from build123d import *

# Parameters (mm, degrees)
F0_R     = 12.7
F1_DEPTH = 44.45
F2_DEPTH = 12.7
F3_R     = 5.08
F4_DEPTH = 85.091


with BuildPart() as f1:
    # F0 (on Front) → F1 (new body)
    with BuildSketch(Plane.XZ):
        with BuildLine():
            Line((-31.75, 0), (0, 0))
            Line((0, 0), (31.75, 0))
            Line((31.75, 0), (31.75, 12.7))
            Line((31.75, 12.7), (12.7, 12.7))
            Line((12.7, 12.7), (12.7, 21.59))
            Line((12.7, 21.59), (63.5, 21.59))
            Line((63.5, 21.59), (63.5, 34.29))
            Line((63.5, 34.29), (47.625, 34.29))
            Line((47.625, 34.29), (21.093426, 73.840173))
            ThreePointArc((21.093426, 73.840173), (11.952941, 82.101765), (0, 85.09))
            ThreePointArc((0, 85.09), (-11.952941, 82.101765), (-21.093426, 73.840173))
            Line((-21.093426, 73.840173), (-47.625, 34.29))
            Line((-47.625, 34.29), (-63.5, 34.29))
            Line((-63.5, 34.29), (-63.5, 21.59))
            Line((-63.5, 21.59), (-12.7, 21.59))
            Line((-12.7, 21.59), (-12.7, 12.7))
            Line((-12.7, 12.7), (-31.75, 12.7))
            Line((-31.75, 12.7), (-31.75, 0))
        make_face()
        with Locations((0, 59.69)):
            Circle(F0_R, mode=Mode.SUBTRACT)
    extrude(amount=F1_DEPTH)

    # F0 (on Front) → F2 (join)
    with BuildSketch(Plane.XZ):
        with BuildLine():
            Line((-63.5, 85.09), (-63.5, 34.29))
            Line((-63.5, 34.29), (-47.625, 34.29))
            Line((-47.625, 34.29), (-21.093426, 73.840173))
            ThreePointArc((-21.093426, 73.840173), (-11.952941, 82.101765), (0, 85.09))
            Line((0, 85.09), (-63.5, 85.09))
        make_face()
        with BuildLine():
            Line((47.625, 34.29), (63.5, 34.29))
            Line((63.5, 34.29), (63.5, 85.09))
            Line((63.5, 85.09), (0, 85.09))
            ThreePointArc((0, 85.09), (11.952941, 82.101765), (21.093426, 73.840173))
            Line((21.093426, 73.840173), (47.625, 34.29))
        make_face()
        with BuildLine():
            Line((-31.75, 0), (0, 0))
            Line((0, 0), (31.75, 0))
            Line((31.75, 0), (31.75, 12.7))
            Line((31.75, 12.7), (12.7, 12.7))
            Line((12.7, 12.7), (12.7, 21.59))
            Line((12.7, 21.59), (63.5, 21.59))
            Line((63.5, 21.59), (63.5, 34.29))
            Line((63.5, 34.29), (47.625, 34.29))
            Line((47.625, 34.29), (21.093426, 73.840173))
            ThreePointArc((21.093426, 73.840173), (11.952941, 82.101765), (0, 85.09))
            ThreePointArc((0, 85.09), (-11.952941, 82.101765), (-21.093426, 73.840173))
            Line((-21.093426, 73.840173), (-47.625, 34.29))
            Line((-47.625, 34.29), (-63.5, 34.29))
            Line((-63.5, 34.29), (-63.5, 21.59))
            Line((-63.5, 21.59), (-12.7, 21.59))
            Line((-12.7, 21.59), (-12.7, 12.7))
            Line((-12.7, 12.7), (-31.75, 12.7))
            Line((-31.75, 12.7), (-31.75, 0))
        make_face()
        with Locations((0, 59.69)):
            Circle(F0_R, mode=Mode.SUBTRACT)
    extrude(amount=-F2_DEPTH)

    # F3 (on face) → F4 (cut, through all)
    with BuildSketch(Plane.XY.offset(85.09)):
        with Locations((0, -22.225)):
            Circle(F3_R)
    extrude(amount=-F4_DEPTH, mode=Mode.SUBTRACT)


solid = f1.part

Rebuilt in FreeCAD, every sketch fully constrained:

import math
import FreeCAD as App
import Part
import Sketcher
from FreeCAD import Vector
Q = App.Units.Quantity

doc = App.newDocument("Part")
body = doc.addObject("PartDesign::Body", "Body")

# Sketch on XZ plane
sketch1 = body.newObject("Sketcher::SketchObject", "Sketch")
sketch1.AttachmentSupport = (doc.getObject("XZ_Plane"), [""])
sketch1.MapMode = "FlatFace"
sketch1.addGeometry(Part.LineSegment(Vector(-31.75, 0, 0), Vector(31.75, 0, 0)), False)
sketch1.addGeometry(Part.LineSegment(Vector(31.75, 0, 0), Vector(31.75, 12.7, 0)), False)
sketch1.addGeometry(Part.LineSegment(Vector(31.75, 12.7, 0), Vector(12.7, 12.7, 0)), False)
sketch1.addGeometry(Part.LineSegment(Vector(12.7, 12.7, 0), Vector(12.7, 21.59, 0)), False)
sketch1.addGeometry(Part.LineSegment(Vector(12.7, 21.59, 0), Vector(63.5, 21.59, 0)), False)
sketch1.addGeometry(Part.LineSegment(Vector(63.5, 21.59, 0), Vector(63.5, 34.29, 0)), False)
sketch1.addGeometry(Part.LineSegment(Vector(63.5, 34.29, 0), Vector(47.625, 34.29, 0)), False)
sketch1.addGeometry(Part.LineSegment(Vector(47.625, 34.29, 0), Vector(21.093426, 73.840173, 0)), False)
sketch1.addGeometry(Part.ArcOfCircle(Part.Circle(Vector(0, 59.69, 0), Vector(0, 0, 1), 25.4), math.radians(33.855026), math.radians(90.000001)), False)
sketch1.addGeometry(Part.ArcOfCircle(Part.Circle(Vector(0, 59.69, 0), Vector(0, 0, 1), 25.4), math.radians(89.999999), math.radians(146.144974)), False)
sketch1.addGeometry(Part.LineSegment(Vector(-21.093426, 73.840173, 0), Vector(-47.625, 34.29, 0)), False)
sketch1.addGeometry(Part.LineSegment(Vector(-47.625, 34.29, 0), Vector(-63.5, 34.29, 0)), False)
sketch1.addGeometry(Part.LineSegment(Vector(-63.5, 34.29, 0), Vector(-63.5, 21.59, 0)), False)
sketch1.addGeometry(Part.LineSegment(Vector(-63.5, 21.59, 0), Vector(-12.7, 21.59, 0)), False)
sketch1.addGeometry(Part.LineSegment(Vector(-12.7, 21.59, 0), Vector(-12.7, 12.7, 0)), False)
sketch1.addGeometry(Part.LineSegment(Vector(-12.7, 12.7, 0), Vector(-31.75, 12.7, 0)), False)
sketch1.addGeometry(Part.LineSegment(Vector(-31.75, 12.7, 0), Vector(-31.75, 0, 0)), False)
sketch1.addGeometry(Part.Circle(Vector(0, 59.69, 0), Vector(0, 0, 1), 12.7), False)
sketch1.addConstraint(Sketcher.Constraint("Coincident", 0, 2, 1, 1))
sketch1.addConstraint(Sketcher.Constraint("Coincident", 1, 2, 2, 1))
sketch1.addConstraint(Sketcher.Constraint("Coincident", 2, 2, 3, 1))
sketch1.addConstraint(Sketcher.Constraint("Coincident", 3, 2, 4, 1))
sketch1.addConstraint(Sketcher.Constraint("Coincident", 4, 2, 5, 1))
sketch1.addConstraint(Sketcher.Constraint("Coincident", 5, 2, 6, 1))
sketch1.addConstraint(Sketcher.Constraint("Coincident", 6, 2, 7, 1))
sketch1.addConstraint(Sketcher.Constraint("Tangent", 7, 2, 8, 1))
sketch1.addConstraint(Sketcher.Constraint("Tangent", 8, 2, 9, 1))
sketch1.addConstraint(Sketcher.Constraint("Tangent", 9, 2, 10, 1))
sketch1.addConstraint(Sketcher.Constraint("Coincident", 10, 2, 11, 1))
sketch1.addConstraint(Sketcher.Constraint("Coincident", 11, 2, 12, 1))
sketch1.addConstraint(Sketcher.Constraint("Coincident", 12, 2, 13, 1))
sketch1.addConstraint(Sketcher.Constraint("Coincident", 13, 2, 14, 1))
sketch1.addConstraint(Sketcher.Constraint("Coincident", 14, 2, 15, 1))
sketch1.addConstraint(Sketcher.Constraint("Coincident", 15, 2, 16, 1))
sketch1.addConstraint(Sketcher.Constraint("Coincident", 16, 2, 0, 1))
sketch1.addConstraint(Sketcher.Constraint("Horizontal", 0))
sketch1.addConstraint(Sketcher.Constraint("Vertical", 1))
sketch1.addConstraint(Sketcher.Constraint("Horizontal", 2))
sketch1.addConstraint(Sketcher.Constraint("Vertical", 3))
sketch1.addConstraint(Sketcher.Constraint("Horizontal", 4))
sketch1.addConstraint(Sketcher.Constraint("Vertical", 5))
sketch1.addConstraint(Sketcher.Constraint("Horizontal", 6))
sketch1.addConstraint(Sketcher.Constraint("Horizontal", 11))
sketch1.addConstraint(Sketcher.Constraint("Vertical", 12))
sketch1.addConstraint(Sketcher.Constraint("Horizontal", 13))
sketch1.addConstraint(Sketcher.Constraint("Vertical", 14))
sketch1.addConstraint(Sketcher.Constraint("Horizontal", 15))
sketch1.addConstraint(Sketcher.Constraint("Vertical", 16))
sketch1.addConstraint(Sketcher.Constraint("Coincident", 17, 3, 8, 3))
sketch1.addConstraint(Sketcher.Constraint("Equal", 8, 9))
sketch1.addConstraint(Sketcher.Constraint("Symmetric", 0, 2, 16, 2, -1, 1))
sketch1.addConstraint(Sketcher.Constraint("Symmetric", 7, 2, 9, 2, -2))
sketch1.addConstraint(Sketcher.Constraint("Symmetric", 5, 2, 11, 2, -2))
sketch1.addConstraint(Sketcher.Constraint("Symmetric", 3, 2, 13, 2, -2))
sketch1.addConstraint(Sketcher.Constraint("PointOnObject", 8, 2, -2))
sketch1.addConstraint(Sketcher.Constraint("Horizontal", 2, 2, 14, 2))
sketch1.addConstraint(Sketcher.Constraint("Equal", 1, 5))
sketch1.addConstraint(Sketcher.Constraint("Diameter", 17, Q("1 in")))
sketch1.addConstraint(Sketcher.Constraint("Radius", 8, Q("1 in")))
sketch1.addConstraint(Sketcher.Constraint("DistanceX", 4, 1, 4, 2, Q("2 in")))
sketch1.addConstraint(Sketcher.Constraint("DistanceX", 0, 1, 0, 2, Q("2.5 in")))
sketch1.addConstraint(Sketcher.Constraint("DistanceY", 1, 1, 1, 2, Q("0.5 in")))
sketch1.addConstraint(Sketcher.Constraint("DistanceY", 10, 2, 9, 3, Q("1 in")))
sketch1.addConstraint(Sketcher.Constraint("DistanceX", 13, 2, 3, 2, Q("1 in")))
sketch1.addConstraint(Sketcher.Constraint("DistanceY", 3, 1, 3, 2, Q("0.35 in")))
sketch1.addConstraint(Sketcher.Constraint("DistanceX", 6, 2, 6, 1, Q("0.625 in")))
pad1 = body.newObject("PartDesign::Pad", "Pad")
pad1.Profile = sketch1
pad1.Length = Q("1.75 in")

# Sketch on XZ plane
sketch2 = body.newObject("Sketcher::SketchObject", "Sketch001")
sketch2.AttachmentSupport = (doc.getObject("XZ_Plane"), [""])
sketch2.MapMode = "FlatFace"
sketch2.addGeometry(Part.LineSegment(Vector(-63.5, 85.09, 0), Vector(-63.5, 21.59, 0)), False)
sketch2.addGeometry(Part.LineSegment(Vector(-63.5, 21.59, 0), Vector(-12.7, 21.59, 0)), False)
sketch2.addGeometry(Part.LineSegment(Vector(-12.7, 21.59, 0), Vector(-12.7, 12.7, 0)), False)
sketch2.addGeometry(Part.LineSegment(Vector(-12.7, 12.7, 0), Vector(-31.75, 12.7, 0)), False)
sketch2.addGeometry(Part.LineSegment(Vector(-31.75, 12.7, 0), Vector(-31.75, 0, 0)), False)
sketch2.addGeometry(Part.LineSegment(Vector(-31.75, 0, 0), Vector(31.75, 0, 0)), False)
sketch2.addGeometry(Part.LineSegment(Vector(31.75, 0, 0), Vector(31.75, 12.7, 0)), False)
sketch2.addGeometry(Part.LineSegment(Vector(31.75, 12.7, 0), Vector(12.7, 12.7, 0)), False)
sketch2.addGeometry(Part.LineSegment(Vector(12.7, 12.7, 0), Vector(12.7, 21.59, 0)), False)
sketch2.addGeometry(Part.LineSegment(Vector(12.7, 21.59, 0), Vector(63.5, 21.59, 0)), False)
sketch2.addGeometry(Part.LineSegment(Vector(63.5, 21.59, 0), Vector(63.5, 85.09, 0)), False)
sketch2.addGeometry(Part.LineSegment(Vector(63.5, 85.09, 0), Vector(-63.5, 85.09, 0)), False)
sketch2.addGeometry(Part.Circle(Vector(0, 59.69, 0), Vector(0, 0, 1), 12.7), False)
sketch2.addConstraint(Sketcher.Constraint("Coincident", 0, 2, 1, 1))
sketch2.addConstraint(Sketcher.Constraint("Coincident", 1, 2, 2, 1))
sketch2.addConstraint(Sketcher.Constraint("Coincident", 2, 2, 3, 1))
sketch2.addConstraint(Sketcher.Constraint("Coincident", 3, 2, 4, 1))
sketch2.addConstraint(Sketcher.Constraint("Coincident", 4, 2, 5, 1))
sketch2.addConstraint(Sketcher.Constraint("Coincident", 5, 2, 6, 1))
sketch2.addConstraint(Sketcher.Constraint("Coincident", 6, 2, 7, 1))
sketch2.addConstraint(Sketcher.Constraint("Coincident", 7, 2, 8, 1))
sketch2.addConstraint(Sketcher.Constraint("Coincident", 8, 2, 9, 1))
sketch2.addConstraint(Sketcher.Constraint("Coincident", 9, 2, 10, 1))
sketch2.addConstraint(Sketcher.Constraint("Coincident", 10, 2, 11, 1))
sketch2.addConstraint(Sketcher.Constraint("Coincident", 11, 2, 0, 1))
sketch2.addConstraint(Sketcher.Constraint("Vertical", 0))
sketch2.addConstraint(Sketcher.Constraint("Horizontal", 1))
sketch2.addConstraint(Sketcher.Constraint("Vertical", 2))
sketch2.addConstraint(Sketcher.Constraint("Horizontal", 3))
sketch2.addConstraint(Sketcher.Constraint("Vertical", 4))
sketch2.addConstraint(Sketcher.Constraint("Horizontal", 5))
sketch2.addConstraint(Sketcher.Constraint("Vertical", 6))
sketch2.addConstraint(Sketcher.Constraint("Horizontal", 7))
sketch2.addConstraint(Sketcher.Constraint("Vertical", 8))
sketch2.addConstraint(Sketcher.Constraint("Horizontal", 9))
sketch2.addConstraint(Sketcher.Constraint("Vertical", 10))
sketch2.addConstraint(Sketcher.Constraint("Horizontal", 11))
sketch2.addConstraint(Sketcher.Constraint("Symmetric", 4, 2, 5, 2, -1, 1))
sketch2.addConstraint(Sketcher.Constraint("Symmetric", 2, 2, 7, 2, -2))
sketch2.addConstraint(Sketcher.Constraint("Symmetric", 0, 2, 9, 2, -2))
sketch2.addConstraint(Sketcher.Constraint("PointOnObject", 12, 3, -2))
sketch2.addConstraint(Sketcher.Constraint("Equal", 5, 0))
sketch2.addConstraint(Sketcher.Constraint("Diameter", 12, Q("1 in")))
sketch2.addConstraint(Sketcher.Constraint("DistanceX", 1, 1, 1, 2, Q("2 in")))
sketch2.addConstraint(Sketcher.Constraint("DistanceX", 11, 2, 11, 1, Q("5 in")))
sketch2.addConstraint(Sketcher.Constraint("DistanceX", 5, 1, 5, 2, Q("2.5 in")))
sketch2.addConstraint(Sketcher.Constraint("DistanceY", 4, 2, 4, 1, Q("0.5 in")))
sketch2.addConstraint(Sketcher.Constraint("DistanceY", 12, 3, 10, 2, Q("1 in")))
sketch2.addConstraint(Sketcher.Constraint("DistanceY", 2, 2, 2, 1, Q("0.35 in")))
pad2 = body.newObject("PartDesign::Pad", "Pad001")
pad2.Profile = sketch2
pad2.Length = Q("0.5 in")
pad2.Reversed = True

# Sketch on XY plane
sketch3 = body.newObject("Sketcher::SketchObject", "Sketch002")
sketch3.AttachmentSupport = (doc.getObject("XY_Plane"), [""])
sketch3.MapMode = "FlatFace"
sketch3.AttachmentOffset = App.Placement(Vector(0, 0, 3.35 * 25.4), App.Rotation())
sketch3.addGeometry(Part.Circle(Vector(0, -22.225, 0), Vector(0, 0, 1), 5.08), False)
sketch3.addConstraint(Sketcher.Constraint("PointOnObject", 0, 3, -2))
sketch3.addConstraint(Sketcher.Constraint("Diameter", 0, Q("0.4 in")))
sketch3.addConstraint(Sketcher.Constraint("DistanceY", 0, 3, -1, 1, Q("0.875 in")))
pocket1 = body.newObject("PartDesign::Pocket", "Pocket")
pocket1.Profile = sketch3
pocket1.Type = "ThroughAll"

doc.recompute()
